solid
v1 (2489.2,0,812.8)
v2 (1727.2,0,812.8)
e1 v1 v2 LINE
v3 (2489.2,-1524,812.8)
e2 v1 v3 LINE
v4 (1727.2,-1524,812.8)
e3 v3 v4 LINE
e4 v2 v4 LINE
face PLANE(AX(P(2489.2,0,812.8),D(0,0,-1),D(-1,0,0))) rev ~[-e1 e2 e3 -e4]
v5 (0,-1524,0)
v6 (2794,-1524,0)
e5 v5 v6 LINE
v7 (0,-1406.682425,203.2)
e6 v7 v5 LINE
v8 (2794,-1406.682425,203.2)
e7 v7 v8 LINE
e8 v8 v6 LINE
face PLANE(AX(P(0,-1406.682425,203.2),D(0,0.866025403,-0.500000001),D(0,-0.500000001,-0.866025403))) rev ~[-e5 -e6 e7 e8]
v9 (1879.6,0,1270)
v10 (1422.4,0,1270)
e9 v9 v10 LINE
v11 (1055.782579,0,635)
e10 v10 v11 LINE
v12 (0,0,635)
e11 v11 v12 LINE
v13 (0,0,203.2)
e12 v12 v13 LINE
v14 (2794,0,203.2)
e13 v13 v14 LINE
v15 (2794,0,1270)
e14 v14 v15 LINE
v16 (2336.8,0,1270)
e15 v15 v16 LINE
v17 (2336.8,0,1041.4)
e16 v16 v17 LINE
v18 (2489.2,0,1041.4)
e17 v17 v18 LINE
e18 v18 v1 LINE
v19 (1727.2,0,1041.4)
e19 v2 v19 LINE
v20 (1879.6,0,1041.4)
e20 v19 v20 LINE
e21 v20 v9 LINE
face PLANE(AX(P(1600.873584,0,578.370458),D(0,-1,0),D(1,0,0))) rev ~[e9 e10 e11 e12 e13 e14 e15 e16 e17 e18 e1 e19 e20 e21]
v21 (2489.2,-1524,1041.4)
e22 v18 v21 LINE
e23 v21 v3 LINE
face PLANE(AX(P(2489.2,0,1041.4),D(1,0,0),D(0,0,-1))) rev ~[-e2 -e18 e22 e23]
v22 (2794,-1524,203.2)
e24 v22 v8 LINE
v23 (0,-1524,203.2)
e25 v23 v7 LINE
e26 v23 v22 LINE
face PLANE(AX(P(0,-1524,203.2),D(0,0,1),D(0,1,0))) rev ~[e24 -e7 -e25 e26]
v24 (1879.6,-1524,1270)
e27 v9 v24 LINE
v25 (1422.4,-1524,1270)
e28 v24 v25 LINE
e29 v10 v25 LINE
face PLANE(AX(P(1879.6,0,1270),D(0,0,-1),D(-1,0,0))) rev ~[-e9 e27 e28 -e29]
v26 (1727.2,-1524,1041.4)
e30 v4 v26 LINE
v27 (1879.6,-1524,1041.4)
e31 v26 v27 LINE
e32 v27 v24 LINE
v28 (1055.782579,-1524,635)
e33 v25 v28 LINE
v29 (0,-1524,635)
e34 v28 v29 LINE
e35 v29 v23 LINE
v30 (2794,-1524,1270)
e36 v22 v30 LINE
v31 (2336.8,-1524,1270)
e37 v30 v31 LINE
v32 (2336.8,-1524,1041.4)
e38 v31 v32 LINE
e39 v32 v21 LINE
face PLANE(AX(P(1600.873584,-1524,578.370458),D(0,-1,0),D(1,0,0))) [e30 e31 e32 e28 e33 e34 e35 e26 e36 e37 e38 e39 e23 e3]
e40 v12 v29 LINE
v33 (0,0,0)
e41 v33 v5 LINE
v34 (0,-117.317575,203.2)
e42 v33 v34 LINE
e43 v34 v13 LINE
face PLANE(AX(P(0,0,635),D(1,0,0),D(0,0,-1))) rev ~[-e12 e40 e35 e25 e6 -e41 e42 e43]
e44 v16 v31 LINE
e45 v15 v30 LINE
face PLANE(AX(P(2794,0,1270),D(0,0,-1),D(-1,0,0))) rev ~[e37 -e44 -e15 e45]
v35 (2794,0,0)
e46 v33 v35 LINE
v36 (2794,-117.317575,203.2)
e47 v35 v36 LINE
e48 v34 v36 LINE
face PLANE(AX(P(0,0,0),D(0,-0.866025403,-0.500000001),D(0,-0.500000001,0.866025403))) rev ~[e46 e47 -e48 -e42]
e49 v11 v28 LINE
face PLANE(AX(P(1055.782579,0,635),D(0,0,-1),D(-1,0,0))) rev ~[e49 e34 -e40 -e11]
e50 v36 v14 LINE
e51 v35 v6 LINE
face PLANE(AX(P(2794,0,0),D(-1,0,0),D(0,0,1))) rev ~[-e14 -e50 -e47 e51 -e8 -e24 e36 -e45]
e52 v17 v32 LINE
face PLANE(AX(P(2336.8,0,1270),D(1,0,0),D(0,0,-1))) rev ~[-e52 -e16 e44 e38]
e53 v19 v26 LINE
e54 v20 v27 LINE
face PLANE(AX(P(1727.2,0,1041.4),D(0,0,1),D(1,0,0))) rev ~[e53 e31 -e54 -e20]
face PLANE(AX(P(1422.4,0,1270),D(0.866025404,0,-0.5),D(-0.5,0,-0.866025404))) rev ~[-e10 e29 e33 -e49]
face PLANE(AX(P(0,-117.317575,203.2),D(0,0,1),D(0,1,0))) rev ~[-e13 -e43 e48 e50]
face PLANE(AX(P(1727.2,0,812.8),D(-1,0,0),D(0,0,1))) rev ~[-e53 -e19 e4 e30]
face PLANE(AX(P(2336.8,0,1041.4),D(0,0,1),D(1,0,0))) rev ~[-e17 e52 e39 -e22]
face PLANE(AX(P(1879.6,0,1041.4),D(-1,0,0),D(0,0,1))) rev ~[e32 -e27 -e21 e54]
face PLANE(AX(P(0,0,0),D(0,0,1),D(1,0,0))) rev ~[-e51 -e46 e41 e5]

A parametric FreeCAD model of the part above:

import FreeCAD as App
import Part
import Sketcher
Q = App.Units.Quantity


def add_polygon(sketch, points):
    """Adds a closed chain of lines whose ends are joined by coincident constraints."""
    first, n = sketch.GeometryCount, len(points)
    for a, b in zip(points, points[1:] + points[:1]):
        sketch.addGeometry(Part.LineSegment(App.Vector(*a, 0), App.Vector(*b, 0)), False)
    for i in range(n):
        sketch.addConstraint(Sketcher.Constraint("Coincident", first + i, 2, first + (i + 1) % n, 1))

doc = App.newDocument("Part")
body = doc.addObject("PartDesign::Body", "Body")

sketch1 = body.newObject("Sketcher::SketchObject", "Sketch")
sketch1.AttachmentSupport = (doc.getObject("XZ_Plane"), [""])
sketch1.MapMode = "FlatFace"
add_polygon(sketch1, [(0, 635), (0, 0), (2794, 0), (2794, 1270), (2336.8, 1270), (2336.8, 1041.4), (2489.2, 1041.4), (2489.2, 812.8), (1727.2, 812.8), (1727.2, 1041.4), (1879.6, 1041.4), (1879.6, 1270), (1422.4, 1270), (1055.782579, 635)])
sketch1.addConstraint(Sketcher.Constraint("Vertical", 0))
sketch1.addConstraint(Sketcher.Constraint("Horizontal", 1))
sketch1.addConstraint(Sketcher.Constraint("Vertical", 2))
sketch1.addConstraint(Sketcher.Constraint("Horizontal", 3))
sketch1.addConstraint(Sketcher.Constraint("Vertical", 4))
sketch1.addConstraint(Sketcher.Constraint("Horizontal", 5))
sketch1.addConstraint(Sketcher.Constraint("Vertical", 6))
sketch1.addConstraint(Sketcher.Constraint("Horizontal", 7))
sketch1.addConstraint(Sketcher.Constraint("Vertical", 8))
sketch1.addConstraint(Sketcher.Constraint("Horizontal", 9))
sketch1.addConstraint(Sketcher.Constraint("Vertical", 10))
sketch1.addConstraint(Sketcher.Constraint("Horizontal", 11))
sketch1.addConstraint(Sketcher.Constraint("Horizontal", 13))
sketch1.addConstraint(Sketcher.Constraint("Coincident", 0, 2, -1, 1))
sketch1.addConstraint(Sketcher.Constraint("Horizontal", 5, 2, 8, 2))
sketch1.addConstraint(Sketcher.Constraint("Horizontal", 3, 2, 10, 2))
sketch1.addConstraint(Sketcher.Constraint("Equal", 5, 9))
sketch1.addConstraint(Sketcher.Constraint("Equal", 3, 11))
sketch1.addConstraint(Sketcher.Constraint("Equal", 4, 6))
sketch1.addConstraint(Sketcher.Constraint("DistanceX", 1, 1, 1, 2, Q("110 in")))
sketch1.addConstraint(Sketcher.Constraint("DistanceX", 3, 2, 3, 1, Q("18 in")))
sketch1.addConstraint(Sketcher.Constraint("DistanceX", 5, 1, 5, 2, Q("6 in")))
sketch1.addConstraint(Sketcher.Constraint("DistanceX", 7, 2, 7, 1, Q("30 in")))
sketch1.addConstraint(Sketcher.Constraint("DistanceY", 0, 2, 0, 1, Q("25 in")))
sketch1.addConstraint(Sketcher.Constraint("DistanceY", 2, 1, 2, 2, Q("50 in")))
sketch1.addConstraint(Sketcher.Constraint("DistanceY", 4, 2, 4, 1, Q("9 in")))
sketch1.addConstraint(Sketcher.Constraint("Angle", 12, Q("-120 deg")))
pad1 = body.newObject("PartDesign::Pad", "Pad")
pad1.Profile = sketch1
pad1.Length = Q("60 in")

sketch2 = body.newObject("Sketcher::SketchObject", "Sketch001")
sketch2.AttachmentSupport = (doc.getObject("YZ_Plane"), [""])
sketch2.MapMode = "FlatFace"
add_polygon(sketch2, [(0, 203.2), (0, 0), (-117.317575, 203.2)])
sketch2.addConstraint(Sketcher.Constraint("Vertical", 0))
sketch2.addConstraint(Sketcher.Constraint("Horizontal", 2))
sketch2.addConstraint(Sketcher.Constraint("Coincident", 0, 2, -1, 1))
sketch2.addConstraint(Sketcher.Constraint("DistanceY", 0, 2, 0, 1, Q("8 in")))
sketch2.addConstraint(Sketcher.Constraint("Angle", 1, Q("120 deg")))
pocket1 = body.newObject("PartDesign::Pocket", "Pocket")
pocket1.Profile = sketch2
pocket1.Type = "ThroughAll"
pocket1.Reversed = True

sketch3 = body.newObject("Sketcher::SketchObject", "Sketch002")
sketch3.AttachmentSupport = (doc.getObject("YZ_Plane"), [""])
sketch3.MapMode = "FlatFace"
add_polygon(sketch3, [(-1406.682425, 203.2), (-1524, 0), (-1524, 203.2)])
sketch3.addConstraint(Sketcher.Constraint("Vertical", 1))
sketch3.addConstraint(Sketcher.Constraint("Horizontal", 2))
sketch3.addConstraint(Sketcher.Constraint("PointOnObject", 0, 2, -1))
sketch3.addConstraint(Sketcher.Constraint("DistanceY", 1, 1, 1, 2, Q("8 in")))
sketch3.addConstraint(Sketcher.Constraint("DistanceX", 0, 2, -1, 1, Q("60 in")))
sketch3.addConstraint(Sketcher.Constraint("Angle", 0, Q("-120 deg")))
pocket2 = body.newObject("PartDesign::Pocket", "Pocket001")
pocket2.Profile = sketch3
pocket2.Type = "ThroughAll"
pocket2.Reversed = True

doc.recompute()
